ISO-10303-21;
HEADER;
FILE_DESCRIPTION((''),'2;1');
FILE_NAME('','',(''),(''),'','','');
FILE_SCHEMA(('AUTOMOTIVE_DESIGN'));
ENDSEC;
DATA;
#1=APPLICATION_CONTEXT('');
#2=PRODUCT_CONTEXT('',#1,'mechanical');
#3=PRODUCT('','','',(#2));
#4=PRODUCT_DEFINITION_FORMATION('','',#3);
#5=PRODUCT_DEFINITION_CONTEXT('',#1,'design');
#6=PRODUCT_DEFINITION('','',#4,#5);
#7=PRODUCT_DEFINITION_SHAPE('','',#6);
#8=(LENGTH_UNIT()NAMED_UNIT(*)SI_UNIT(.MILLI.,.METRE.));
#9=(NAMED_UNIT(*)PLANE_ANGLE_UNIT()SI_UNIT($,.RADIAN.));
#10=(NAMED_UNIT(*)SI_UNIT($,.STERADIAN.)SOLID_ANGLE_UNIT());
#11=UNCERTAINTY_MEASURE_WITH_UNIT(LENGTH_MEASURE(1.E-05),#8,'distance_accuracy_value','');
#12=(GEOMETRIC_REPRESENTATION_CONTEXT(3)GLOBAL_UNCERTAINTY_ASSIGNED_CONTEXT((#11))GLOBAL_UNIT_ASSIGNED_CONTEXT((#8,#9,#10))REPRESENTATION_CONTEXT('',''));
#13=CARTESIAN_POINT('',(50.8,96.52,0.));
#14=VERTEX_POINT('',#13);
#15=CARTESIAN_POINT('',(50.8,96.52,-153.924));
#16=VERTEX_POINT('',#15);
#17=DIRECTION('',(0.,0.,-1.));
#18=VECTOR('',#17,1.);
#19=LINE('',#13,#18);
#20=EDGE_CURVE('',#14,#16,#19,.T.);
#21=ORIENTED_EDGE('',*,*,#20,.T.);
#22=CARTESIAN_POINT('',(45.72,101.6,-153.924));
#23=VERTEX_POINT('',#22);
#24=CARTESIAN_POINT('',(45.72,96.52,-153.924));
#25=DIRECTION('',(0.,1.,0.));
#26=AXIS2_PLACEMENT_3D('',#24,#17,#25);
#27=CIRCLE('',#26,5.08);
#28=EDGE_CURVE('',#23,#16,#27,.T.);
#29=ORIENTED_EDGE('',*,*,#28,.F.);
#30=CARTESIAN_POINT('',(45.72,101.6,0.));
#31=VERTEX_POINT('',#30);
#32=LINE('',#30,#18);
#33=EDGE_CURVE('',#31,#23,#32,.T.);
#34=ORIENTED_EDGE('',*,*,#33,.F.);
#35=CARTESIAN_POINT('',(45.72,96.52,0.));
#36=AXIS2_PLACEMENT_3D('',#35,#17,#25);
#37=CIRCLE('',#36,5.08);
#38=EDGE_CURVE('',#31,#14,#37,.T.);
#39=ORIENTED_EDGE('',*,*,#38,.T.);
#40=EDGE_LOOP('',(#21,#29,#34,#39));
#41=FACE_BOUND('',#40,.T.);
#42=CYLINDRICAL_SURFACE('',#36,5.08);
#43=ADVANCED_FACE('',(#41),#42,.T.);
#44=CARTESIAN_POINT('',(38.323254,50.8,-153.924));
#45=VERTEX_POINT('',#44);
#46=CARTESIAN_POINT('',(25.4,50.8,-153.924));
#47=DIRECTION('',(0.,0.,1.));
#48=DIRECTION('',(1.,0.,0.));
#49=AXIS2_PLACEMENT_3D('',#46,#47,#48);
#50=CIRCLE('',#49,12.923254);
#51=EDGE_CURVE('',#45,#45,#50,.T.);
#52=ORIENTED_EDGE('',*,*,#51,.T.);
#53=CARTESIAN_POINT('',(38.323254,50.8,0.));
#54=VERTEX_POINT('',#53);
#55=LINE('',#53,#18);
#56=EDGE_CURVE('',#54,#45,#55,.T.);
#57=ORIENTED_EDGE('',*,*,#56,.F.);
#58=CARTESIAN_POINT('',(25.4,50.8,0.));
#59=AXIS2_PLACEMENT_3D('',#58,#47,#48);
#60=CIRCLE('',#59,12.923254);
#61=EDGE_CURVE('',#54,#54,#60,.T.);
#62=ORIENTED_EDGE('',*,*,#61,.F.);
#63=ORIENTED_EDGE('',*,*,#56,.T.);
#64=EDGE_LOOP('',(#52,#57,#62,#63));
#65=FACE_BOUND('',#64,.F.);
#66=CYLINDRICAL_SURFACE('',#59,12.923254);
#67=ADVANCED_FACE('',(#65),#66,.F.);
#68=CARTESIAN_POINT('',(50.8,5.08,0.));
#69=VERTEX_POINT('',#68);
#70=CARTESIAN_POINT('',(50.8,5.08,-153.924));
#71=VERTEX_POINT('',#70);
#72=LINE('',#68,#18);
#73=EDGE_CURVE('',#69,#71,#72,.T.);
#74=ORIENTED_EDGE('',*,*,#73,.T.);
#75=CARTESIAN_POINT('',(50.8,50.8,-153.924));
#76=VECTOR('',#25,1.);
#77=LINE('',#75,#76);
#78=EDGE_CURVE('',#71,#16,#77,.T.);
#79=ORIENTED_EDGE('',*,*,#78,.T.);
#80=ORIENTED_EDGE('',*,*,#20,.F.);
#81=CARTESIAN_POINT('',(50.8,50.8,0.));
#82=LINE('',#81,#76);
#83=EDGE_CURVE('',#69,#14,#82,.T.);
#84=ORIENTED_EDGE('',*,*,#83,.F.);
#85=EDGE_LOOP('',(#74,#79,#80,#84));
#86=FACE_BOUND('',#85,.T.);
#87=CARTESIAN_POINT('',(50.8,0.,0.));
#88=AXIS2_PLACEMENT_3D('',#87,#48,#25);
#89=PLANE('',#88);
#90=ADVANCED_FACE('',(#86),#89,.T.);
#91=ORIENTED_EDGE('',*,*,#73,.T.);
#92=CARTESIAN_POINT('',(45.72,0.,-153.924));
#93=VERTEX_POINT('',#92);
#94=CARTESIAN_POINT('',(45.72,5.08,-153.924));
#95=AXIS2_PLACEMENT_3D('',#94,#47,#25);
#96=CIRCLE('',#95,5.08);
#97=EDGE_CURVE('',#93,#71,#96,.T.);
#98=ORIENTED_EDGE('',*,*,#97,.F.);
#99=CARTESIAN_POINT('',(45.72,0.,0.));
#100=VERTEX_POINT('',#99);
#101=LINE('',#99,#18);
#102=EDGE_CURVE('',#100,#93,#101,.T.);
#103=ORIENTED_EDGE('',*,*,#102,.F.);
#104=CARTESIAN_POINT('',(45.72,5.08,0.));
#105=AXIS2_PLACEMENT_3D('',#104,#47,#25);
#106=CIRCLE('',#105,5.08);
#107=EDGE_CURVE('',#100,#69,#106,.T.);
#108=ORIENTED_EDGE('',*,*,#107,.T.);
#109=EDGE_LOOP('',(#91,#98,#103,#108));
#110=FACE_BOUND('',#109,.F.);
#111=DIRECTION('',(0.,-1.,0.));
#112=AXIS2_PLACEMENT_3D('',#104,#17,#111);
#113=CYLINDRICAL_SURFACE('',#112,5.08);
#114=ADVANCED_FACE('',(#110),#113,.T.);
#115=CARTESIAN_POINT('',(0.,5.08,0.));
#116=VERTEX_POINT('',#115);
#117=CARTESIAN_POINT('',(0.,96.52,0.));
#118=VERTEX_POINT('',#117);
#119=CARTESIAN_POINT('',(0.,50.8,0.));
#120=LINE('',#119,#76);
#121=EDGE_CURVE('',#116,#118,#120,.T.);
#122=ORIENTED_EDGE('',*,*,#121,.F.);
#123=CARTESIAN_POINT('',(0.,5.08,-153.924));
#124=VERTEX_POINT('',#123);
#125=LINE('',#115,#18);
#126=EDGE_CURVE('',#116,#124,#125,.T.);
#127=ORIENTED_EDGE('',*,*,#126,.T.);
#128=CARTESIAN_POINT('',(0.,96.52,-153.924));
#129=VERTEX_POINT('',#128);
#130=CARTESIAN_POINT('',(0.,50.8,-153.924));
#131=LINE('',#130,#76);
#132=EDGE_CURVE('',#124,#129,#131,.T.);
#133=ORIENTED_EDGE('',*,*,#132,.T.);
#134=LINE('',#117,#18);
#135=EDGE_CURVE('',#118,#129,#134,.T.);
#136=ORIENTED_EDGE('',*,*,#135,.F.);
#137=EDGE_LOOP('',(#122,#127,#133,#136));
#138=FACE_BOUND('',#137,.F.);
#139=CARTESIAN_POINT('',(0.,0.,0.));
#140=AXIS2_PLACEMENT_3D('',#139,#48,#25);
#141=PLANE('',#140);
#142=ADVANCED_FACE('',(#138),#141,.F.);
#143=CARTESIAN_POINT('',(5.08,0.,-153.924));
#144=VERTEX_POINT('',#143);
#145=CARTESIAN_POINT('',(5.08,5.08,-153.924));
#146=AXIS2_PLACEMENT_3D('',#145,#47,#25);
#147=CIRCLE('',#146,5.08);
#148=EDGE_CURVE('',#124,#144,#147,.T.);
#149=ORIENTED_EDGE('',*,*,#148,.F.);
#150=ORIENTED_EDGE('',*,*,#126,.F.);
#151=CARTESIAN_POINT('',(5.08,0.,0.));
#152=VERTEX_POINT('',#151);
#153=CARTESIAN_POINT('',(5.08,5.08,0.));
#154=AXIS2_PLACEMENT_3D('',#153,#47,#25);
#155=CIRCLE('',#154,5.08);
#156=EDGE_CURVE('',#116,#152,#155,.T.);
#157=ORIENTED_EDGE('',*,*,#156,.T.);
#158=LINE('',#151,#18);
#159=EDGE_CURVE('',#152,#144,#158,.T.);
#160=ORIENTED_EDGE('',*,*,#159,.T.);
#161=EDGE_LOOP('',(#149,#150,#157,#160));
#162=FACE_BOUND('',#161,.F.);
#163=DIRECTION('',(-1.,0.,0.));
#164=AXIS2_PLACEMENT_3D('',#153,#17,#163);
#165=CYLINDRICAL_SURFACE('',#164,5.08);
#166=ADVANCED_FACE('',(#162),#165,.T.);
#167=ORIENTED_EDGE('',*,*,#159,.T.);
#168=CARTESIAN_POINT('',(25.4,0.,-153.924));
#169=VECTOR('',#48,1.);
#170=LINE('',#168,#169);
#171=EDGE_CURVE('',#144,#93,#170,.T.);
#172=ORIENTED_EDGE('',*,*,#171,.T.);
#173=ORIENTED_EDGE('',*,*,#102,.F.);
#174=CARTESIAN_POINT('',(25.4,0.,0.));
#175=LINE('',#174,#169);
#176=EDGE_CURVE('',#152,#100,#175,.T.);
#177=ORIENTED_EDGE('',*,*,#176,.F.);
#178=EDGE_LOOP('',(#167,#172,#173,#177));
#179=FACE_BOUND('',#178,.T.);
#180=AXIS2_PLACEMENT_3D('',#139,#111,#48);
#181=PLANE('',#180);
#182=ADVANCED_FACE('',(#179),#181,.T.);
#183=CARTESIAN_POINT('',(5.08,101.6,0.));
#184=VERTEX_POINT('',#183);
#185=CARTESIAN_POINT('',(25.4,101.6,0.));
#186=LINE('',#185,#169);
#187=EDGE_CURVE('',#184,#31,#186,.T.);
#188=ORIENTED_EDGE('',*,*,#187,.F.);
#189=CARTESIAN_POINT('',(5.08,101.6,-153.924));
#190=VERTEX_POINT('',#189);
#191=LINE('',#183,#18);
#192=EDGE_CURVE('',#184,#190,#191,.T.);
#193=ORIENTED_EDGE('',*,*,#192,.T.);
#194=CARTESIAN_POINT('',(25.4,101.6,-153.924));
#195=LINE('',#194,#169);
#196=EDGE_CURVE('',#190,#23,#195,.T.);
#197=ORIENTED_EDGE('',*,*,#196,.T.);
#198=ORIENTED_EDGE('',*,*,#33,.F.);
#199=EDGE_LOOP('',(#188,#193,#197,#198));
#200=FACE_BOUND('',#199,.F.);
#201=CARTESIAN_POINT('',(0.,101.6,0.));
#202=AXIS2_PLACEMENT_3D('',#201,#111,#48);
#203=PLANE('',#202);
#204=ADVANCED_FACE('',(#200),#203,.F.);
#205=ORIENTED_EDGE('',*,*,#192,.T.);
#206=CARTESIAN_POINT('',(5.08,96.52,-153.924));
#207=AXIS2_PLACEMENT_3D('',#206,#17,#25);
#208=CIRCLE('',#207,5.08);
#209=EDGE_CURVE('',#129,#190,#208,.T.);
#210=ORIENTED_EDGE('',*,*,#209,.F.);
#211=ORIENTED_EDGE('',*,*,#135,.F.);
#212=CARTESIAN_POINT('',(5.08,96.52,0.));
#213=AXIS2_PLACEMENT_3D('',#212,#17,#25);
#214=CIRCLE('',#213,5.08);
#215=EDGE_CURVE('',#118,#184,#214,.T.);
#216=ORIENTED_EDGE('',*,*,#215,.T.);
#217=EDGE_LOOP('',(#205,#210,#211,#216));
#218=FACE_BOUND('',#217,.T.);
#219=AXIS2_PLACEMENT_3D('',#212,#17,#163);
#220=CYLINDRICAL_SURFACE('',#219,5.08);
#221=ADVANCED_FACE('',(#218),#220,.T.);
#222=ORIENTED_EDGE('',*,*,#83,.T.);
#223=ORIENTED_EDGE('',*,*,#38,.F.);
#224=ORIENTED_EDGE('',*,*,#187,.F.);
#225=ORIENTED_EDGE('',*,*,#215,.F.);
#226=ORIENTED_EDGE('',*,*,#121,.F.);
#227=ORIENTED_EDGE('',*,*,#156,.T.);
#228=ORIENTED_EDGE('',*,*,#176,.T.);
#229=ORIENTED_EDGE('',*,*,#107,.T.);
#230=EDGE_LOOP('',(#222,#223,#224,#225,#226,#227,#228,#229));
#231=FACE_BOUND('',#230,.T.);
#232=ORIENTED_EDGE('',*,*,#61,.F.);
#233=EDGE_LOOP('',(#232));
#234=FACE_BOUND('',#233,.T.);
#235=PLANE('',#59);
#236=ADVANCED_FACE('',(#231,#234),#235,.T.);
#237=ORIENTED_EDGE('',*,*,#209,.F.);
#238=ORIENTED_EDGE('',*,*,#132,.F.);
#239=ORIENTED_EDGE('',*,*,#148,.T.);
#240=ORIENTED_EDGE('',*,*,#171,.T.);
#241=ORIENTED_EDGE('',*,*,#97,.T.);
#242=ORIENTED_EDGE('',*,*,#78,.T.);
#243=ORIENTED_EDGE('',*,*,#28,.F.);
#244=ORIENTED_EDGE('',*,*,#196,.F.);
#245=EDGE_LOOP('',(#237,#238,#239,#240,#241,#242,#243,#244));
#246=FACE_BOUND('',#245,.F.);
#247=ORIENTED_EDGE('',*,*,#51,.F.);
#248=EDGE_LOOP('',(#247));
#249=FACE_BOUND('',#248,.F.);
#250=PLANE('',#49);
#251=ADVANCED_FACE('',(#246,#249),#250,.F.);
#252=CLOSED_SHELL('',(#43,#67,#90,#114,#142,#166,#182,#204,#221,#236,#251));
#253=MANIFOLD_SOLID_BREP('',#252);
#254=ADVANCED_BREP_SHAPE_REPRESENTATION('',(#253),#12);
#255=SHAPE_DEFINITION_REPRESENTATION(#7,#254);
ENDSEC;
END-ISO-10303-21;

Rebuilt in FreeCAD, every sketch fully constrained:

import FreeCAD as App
import Part
import Sketcher
from FreeCAD import Vector
Q = App.Units.Quantity


def edges_at(feature, points):
    """Names of the edges that pass closest to the given points."""
    edges = feature.Shape.Edges
    near = lambda p: min(range(len(edges)), key=lambda i: edges[i].distToShape(Part.Vertex(*p))[0])
    return sorted({f"Edge{near(p) + 1}" for p in points})

doc = App.newDocument("Part")
body = doc.addObject("PartDesign::Body", "Body")

sketch1 = body.newObject("Sketcher::SketchObject", "Sketch")
sketch1.AttachmentSupport = (doc.getObject("XY_Plane"), [""])
sketch1.MapMode = "FlatFace"
sketch1.addGeometry([
    Part.LineSegment(Vector(0, 102, 0), Vector(0, 0, 0)),
    Part.LineSegment(Vector(0, 0, 0), Vector(51, 0, 0)),
    Part.LineSegment(Vector(51, 0, 0), Vector(51, 102, 0)),
    Part.LineSegment(Vector(51, 102, 0), Vector(0, 102, 0)),
    Part.Circle(Vector(25, 51, 0), Vector(0, 0, 1), 13),
], False)
sketch1.addConstraint([
    Sketcher.Constraint("Coincident", 0, 2, 1, 1),
    Sketcher.Constraint("Coincident", 1, 2, 2, 1),
    Sketcher.Constraint("Coincident", 2, 2, 3, 1),
    Sketcher.Constraint("Coincident", 3, 2, 0, 1),
    Sketcher.Constraint("Vertical", 0),
    Sketcher.Constraint("Horizontal", 1),
    Sketcher.Constraint("Vertical", 2),
    Sketcher.Constraint("Horizontal", 3),
    Sketcher.Constraint("Coincident", 0, 2, -1, 1),
    Sketcher.Constraint("DistanceX", 1, 1, 1, 2, Q("2 in")),
    Sketcher.Constraint("DistanceY", 0, 2, 0, 1, Q("4 in")),
    Sketcher.Constraint("DistanceX", -1, 1, 4, 3, Q("1 in")),
    Sketcher.Constraint("DistanceY", -1, 1, 4, 3, Q("2 in")),
    Sketcher.Constraint("Diameter", 4, Q("25.846508 mm")),
])
pad1 = body.newObject("PartDesign::Pad", "Pad")
pad1.Profile = sketch1
pad1.Length = Q("6.06 in")
pad1.Reversed = True
doc.recompute()

fillet = body.newObject("PartDesign::Fillet", "Fillet")
fillet.Base = (pad1, edges_at(pad1, [
    (50.8, 0, -76.962),
    (50.8, 101.6, -76.962),
    (0, 0, -76.962),
    (0, 101.6, -76.962),
]))
fillet.Radius = Q("0.2 in")

doc.recompute()
